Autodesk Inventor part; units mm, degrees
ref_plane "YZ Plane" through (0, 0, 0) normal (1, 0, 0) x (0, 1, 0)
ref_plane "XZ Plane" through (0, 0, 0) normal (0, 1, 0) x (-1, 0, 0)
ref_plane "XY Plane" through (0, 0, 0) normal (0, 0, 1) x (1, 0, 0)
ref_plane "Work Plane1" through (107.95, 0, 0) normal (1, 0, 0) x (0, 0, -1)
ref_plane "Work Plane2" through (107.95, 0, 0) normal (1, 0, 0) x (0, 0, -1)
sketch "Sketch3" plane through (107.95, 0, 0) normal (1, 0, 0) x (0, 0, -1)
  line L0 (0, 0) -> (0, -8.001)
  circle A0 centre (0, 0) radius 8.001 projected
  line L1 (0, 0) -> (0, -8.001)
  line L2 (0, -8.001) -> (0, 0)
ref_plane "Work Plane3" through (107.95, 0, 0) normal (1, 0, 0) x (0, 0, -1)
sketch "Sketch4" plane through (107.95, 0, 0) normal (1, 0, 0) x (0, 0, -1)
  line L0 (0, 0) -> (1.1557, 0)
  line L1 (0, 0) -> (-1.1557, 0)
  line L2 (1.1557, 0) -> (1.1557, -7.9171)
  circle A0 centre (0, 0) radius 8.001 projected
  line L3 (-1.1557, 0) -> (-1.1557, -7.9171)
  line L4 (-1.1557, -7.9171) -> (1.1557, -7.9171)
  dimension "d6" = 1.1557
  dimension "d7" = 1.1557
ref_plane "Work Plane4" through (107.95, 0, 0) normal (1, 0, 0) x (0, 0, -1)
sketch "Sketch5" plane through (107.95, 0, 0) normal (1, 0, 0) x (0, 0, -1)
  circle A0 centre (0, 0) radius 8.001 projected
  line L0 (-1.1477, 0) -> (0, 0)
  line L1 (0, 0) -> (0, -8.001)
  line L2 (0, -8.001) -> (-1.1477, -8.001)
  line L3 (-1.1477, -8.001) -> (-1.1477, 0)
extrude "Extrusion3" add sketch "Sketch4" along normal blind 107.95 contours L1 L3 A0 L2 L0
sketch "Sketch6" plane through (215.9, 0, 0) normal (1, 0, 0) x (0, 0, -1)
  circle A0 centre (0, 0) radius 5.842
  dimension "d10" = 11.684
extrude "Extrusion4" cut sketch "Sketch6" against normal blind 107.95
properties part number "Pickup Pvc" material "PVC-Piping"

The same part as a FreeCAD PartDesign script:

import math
import FreeCAD as App
import Part
import Sketcher
from FreeCAD import Vector
Q = App.Units.Quantity

doc = App.newDocument("Part")
params = doc.addObject("Spreadsheet::Sheet", "Params")
for row, (alias, value) in enumerate([
    ("sketch1_radius", "0.315 in"),
    ("pad1_length", "4.25 in"),
    ("sketch2_diameter", "0.46 in"),
    ("pocket1_length", "4.25 in"),
], start=1):
    params.set(f"A{row}", alias)
    params.set(f"B{row}", "=" + value)
    params.setAlias(f"B{row}", alias)

body = doc.addObject("PartDesign::Body", "Body")

sketch1 = body.newObject("Sketcher::SketchObject", "Sketch")
sketch1.AttachmentSupport = (doc.getObject("YZ_Plane"), [""])
sketch1.MapMode = "FlatFace"
sketch1.AttachmentOffset = App.Placement(Vector(0, 0, 4.25 * 25.4), App.Rotation())
sketch1.addGeometry([
    Part.LineSegment(Vector(0, 1.1557, 0), Vector(0, -1.1557, 0)),
    Part.LineSegment(Vector(0, -1.1557, 0), Vector(-7.9171, -1.1557, 0)),
    Part.ArcOfCircle(Part.Circle(Vector(0, 0, 0), Vector(0, 0, 1), 8.001), math.radians(-171.694898), math.radians(171.694898)),
    Part.LineSegment(Vector(-7.9171, 1.1557, 0), Vector(0, 1.1557, 0)),
], False)
sketch1.addConstraint([
    Sketcher.Constraint("Coincident", 0, 2, 1, 1),
    Sketcher.Constraint("Coincident", 1, 2, 2, 1),
    Sketcher.Constraint("Coincident", 2, 2, 3, 1),
    Sketcher.Constraint("Coincident", 3, 2, 0, 1),
    Sketcher.Constraint("Vertical", 0),
    Sketcher.Constraint("Horizontal", 1),
    Sketcher.Constraint("Horizontal", 3),
    Sketcher.Constraint("Coincident", 2, 3, -1, 1),
    Sketcher.Constraint("Symmetric", 0, 2, 3, 2, -1, 1),
    Sketcher.Constraint("Radius", 2, Q("0.315 in")),
    Sketcher.Constraint("DistanceY", 0, 2, -1, 1, Q("0.0455 in")),
])
sketch1.setExpression("Constraints[9]", "Params.sketch1_radius")
pad1 = body.newObject("PartDesign::Pad", "Pad")
pad1.Profile = sketch1
pad1.setExpression("Length", "Params.pad1_length")

sketch2 = body.newObject("Sketcher::SketchObject", "Sketch001")
sketch2.AttachmentSupport = (doc.getObject("YZ_Plane"), [""])
sketch2.MapMode = "FlatFace"
sketch2.AttachmentOffset = App.Placement(Vector(0, 0, 8.5 * 25.4), App.Rotation())
sketch2.addGeometry(Part.Circle(Vector(0, 0, 0), Vector(0, 0, 1), 5.842), False)
sketch2.addConstraint([
    Sketcher.Constraint("Coincident", 0, 3, -1, 1),
    Sketcher.Constraint("Diameter", 0, Q("0.46 in")),
])
sketch2.setExpression("Constraints[1]", "Params.sketch2_diameter")
pocket1 = body.newObject("PartDesign::Pocket", "Pocket")
pocket1.Profile = sketch2
pocket1.setExpression("Length", "Params.pocket1_length")

doc.recompute()
